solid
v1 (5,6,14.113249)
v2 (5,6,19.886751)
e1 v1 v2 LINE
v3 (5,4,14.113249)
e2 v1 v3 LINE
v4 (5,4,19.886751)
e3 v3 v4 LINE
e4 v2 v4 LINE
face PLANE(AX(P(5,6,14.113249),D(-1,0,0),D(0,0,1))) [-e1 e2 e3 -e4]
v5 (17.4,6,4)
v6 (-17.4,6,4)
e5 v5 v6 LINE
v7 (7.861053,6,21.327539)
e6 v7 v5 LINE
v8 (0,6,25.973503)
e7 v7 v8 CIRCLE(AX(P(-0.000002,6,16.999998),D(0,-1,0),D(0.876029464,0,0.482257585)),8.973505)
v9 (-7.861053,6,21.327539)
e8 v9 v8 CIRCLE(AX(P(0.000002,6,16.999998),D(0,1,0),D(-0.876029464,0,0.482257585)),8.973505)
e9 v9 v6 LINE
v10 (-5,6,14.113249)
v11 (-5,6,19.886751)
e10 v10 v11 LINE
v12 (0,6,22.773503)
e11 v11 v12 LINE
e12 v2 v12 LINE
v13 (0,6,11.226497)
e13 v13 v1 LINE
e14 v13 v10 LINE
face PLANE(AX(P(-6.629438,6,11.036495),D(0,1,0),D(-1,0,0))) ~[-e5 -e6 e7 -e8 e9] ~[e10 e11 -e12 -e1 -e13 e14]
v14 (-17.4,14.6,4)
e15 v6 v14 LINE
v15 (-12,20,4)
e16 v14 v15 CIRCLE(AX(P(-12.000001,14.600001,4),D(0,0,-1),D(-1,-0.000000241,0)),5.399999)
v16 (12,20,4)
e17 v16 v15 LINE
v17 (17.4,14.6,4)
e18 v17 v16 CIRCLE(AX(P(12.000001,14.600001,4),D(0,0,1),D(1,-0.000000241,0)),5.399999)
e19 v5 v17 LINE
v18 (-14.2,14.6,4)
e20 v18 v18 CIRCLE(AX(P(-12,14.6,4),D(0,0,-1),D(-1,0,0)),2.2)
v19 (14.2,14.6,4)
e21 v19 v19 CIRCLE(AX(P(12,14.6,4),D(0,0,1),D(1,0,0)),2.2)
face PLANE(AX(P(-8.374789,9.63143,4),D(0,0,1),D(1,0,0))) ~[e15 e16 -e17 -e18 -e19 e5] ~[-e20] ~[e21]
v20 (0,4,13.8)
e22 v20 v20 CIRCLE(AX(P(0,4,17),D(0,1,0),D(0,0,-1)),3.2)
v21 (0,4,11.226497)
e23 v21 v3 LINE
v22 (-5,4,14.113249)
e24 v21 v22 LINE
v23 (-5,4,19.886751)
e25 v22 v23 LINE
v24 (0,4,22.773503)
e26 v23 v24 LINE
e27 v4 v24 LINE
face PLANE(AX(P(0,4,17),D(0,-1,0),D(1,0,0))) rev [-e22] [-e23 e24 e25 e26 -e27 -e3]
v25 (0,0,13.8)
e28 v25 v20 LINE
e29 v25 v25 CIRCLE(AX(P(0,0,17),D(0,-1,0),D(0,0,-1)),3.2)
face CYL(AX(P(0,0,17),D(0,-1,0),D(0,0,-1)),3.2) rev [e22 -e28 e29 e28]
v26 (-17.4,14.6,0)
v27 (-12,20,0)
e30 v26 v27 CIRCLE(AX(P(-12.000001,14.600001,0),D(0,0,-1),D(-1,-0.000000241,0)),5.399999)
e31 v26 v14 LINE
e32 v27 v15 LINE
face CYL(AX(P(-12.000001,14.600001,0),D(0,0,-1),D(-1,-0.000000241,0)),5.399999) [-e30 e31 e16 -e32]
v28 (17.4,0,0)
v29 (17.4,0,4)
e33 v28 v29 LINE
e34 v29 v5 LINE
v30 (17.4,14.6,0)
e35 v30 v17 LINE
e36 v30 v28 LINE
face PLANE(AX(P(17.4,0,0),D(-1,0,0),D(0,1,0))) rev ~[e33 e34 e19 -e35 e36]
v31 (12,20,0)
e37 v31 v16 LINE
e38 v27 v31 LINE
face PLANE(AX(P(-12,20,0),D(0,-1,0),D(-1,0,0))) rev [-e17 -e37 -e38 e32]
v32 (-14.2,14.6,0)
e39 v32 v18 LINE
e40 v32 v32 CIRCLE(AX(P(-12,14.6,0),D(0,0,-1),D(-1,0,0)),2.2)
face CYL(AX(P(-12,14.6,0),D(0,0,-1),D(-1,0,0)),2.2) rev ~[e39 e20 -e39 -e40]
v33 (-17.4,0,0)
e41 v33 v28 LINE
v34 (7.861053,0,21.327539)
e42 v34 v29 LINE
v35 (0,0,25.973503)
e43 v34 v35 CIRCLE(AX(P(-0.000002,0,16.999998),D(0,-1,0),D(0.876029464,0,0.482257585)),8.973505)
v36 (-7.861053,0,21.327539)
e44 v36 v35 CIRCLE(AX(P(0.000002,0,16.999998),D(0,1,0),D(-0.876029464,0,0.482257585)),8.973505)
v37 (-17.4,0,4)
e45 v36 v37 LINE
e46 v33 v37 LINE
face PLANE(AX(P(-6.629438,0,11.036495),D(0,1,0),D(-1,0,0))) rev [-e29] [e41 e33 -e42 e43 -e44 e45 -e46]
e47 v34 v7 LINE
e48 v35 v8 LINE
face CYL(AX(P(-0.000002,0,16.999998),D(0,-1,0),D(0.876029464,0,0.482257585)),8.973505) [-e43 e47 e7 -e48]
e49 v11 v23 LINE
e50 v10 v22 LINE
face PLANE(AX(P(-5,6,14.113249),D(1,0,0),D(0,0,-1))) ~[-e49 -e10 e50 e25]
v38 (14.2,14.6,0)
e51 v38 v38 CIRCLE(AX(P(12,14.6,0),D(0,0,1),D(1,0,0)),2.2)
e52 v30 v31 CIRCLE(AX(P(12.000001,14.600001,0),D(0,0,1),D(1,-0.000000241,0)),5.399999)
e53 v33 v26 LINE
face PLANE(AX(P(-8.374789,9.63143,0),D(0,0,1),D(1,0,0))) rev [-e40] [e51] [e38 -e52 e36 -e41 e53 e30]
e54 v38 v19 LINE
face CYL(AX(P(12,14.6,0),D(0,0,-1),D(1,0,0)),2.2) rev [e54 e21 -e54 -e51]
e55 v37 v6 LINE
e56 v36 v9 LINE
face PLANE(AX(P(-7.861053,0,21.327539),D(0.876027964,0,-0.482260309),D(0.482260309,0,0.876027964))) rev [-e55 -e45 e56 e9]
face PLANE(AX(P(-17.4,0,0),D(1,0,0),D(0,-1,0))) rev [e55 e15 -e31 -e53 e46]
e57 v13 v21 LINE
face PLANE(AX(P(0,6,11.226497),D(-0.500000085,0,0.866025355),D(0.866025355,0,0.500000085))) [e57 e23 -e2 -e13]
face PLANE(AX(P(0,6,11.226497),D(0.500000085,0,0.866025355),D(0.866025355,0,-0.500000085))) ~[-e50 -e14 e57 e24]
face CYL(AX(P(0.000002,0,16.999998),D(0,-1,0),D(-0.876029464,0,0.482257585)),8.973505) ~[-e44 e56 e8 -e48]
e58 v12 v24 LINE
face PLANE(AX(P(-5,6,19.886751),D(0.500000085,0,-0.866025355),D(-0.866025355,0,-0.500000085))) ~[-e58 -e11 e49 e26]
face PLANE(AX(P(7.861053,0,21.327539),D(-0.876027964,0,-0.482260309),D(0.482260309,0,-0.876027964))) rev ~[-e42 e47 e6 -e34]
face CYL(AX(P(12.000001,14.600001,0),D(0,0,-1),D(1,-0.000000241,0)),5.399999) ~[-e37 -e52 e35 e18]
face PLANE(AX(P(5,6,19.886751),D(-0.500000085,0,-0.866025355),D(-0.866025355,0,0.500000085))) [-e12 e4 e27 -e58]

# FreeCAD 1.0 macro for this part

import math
import FreeCAD as App
import Part
import Sketcher
from FreeCAD import Vector
Q = App.Units.Quantity

doc = App.newDocument("Part")
body = doc.addObject("PartDesign::Body", "Body")

# Sketch on XY plane
sketch1 = doc.addObject("Sketcher::SketchObject", "Sketch")
body.addObject(sketch1)
sketch1.AttachmentSupport = (doc.XY_Plane, [""])
sketch1.MapMode = "FlatFace"
sketch1.addGeometry([
    Part.LineSegment(Vector(0, 0, 0), Vector(17.4, 0, 0)),  # 0
    Part.LineSegment(Vector(17.4, 0, 0), Vector(17.4, 14.6, 0)),  # 1
    Part.ArcOfCircle(Part.Circle(Vector(12, 14.6, 0), Vector(0, 0, 1), 5.4), math.radians(0), math.radians(90)),  # 2
    Part.LineSegment(Vector(12, 20, 0), Vector(0, 20, 0)),  # 3
    Part.LineSegment(Vector(0, 20, 0), Vector(0, 0, 0)),  # 4
    Part.Circle(Vector(12, 14.6, 0), Vector(0, 0, 1), 2.2),  # 5
], False)
sketch1.addConstraint([
    Sketcher.Constraint("Coincident", 0, 2, 1, 1),
    Sketcher.Constraint("Tangent", 1, 2, 2, 1),
    Sketcher.Constraint("Tangent", 2, 2, 3, 1),
    Sketcher.Constraint("Coincident", 3, 2, 4, 1),
    Sketcher.Constraint("Coincident", 4, 2, 0, 1),
    Sketcher.Constraint("Horizontal", 0),
    Sketcher.Constraint("Vertical", 1),
    Sketcher.Constraint("Horizontal", 3),
    Sketcher.Constraint("Vertical", 4),
    Sketcher.Constraint("Coincident", 4, 2, -1, 1),
    Sketcher.Constraint("Coincident", 5, 3, 2, 3),
    Sketcher.Constraint("Diameter", 5, Q("4.4 mm")),
    Sketcher.Constraint("Radius", 2, Q("5.399999 mm")),
    Sketcher.Constraint("DistanceX", 3, 2, 3, 1, Q("12 mm")),
    Sketcher.Constraint("DistanceY", 4, 2, 4, 1, Q("20 mm")),
])
pad1 = doc.addObject("PartDesign::Pad", "Pad")
body.addObject(pad1)
pad1.Profile = sketch1
pad1.Length = 4

# Sketch on XZ plane
sketch2 = doc.addObject("Sketcher::SketchObject", "Sketch001")
body.addObject(sketch2)
sketch2.AttachmentSupport = (doc.XZ_Plane, [""])
sketch2.MapMode = "FlatFace"
sketch2.addGeometry([
    Part.ArcOfCircle(Part.Circle(Vector(0, 17, 0), Vector(0, 0, 1), 3.2), math.radians(-90), math.radians(90)),  # 0
    Part.LineSegment(Vector(0, 13.8, 0), Vector(0, 0, 0)),  # 1
    Part.LineSegment(Vector(0, 0, 0), Vector(17.4, 0, 0)),  # 2
    Part.LineSegment(Vector(17.4, 0, 0), Vector(17.4, 4, 0)),  # 3
    Part.LineSegment(Vector(17.4, 4, 0), Vector(7.9, 21.3, 0)),  # 4
    Part.ArcOfCircle(Part.Circle(Vector(0, 17, 0), Vector(0, 0, 1), 9), math.radians(29), math.radians(90)),  # 5
    Part.LineSegment(Vector(0, 26, 0), Vector(0, 20.2, 0)),  # 6
], False)
sketch2.addConstraint([
    Sketcher.Constraint("Coincident", 0, 1, 1, 1),
    Sketcher.Constraint("Coincident", 1, 2, 2, 1),
    Sketcher.Constraint("Coincident", 2, 2, 3, 1),
    Sketcher.Constraint("Coincident", 3, 2, 4, 1),
    Sketcher.Constraint("Coincident", 4, 2, 5, 1),
    Sketcher.Constraint("Coincident", 5, 2, 6, 1),
    Sketcher.Constraint("Coincident", 6, 2, 0, 2),
    Sketcher.Constraint("Vertical", 1),
    Sketcher.Constraint("Horizontal", 2),
    Sketcher.Constraint("Vertical", 3),
    Sketcher.Constraint("Vertical", 6),
    Sketcher.Constraint("Coincident", 1, 2, -1, 1),
    Sketcher.Constraint("Coincident", 5, 3, 0, 3),
    Sketcher.Constraint("PointOnObject", 0, 3, -2),
    Sketcher.Constraint("PointOnObject", 5, 2, -2),
    Sketcher.Constraint("Radius", 0, Q("3.2 mm")),
    Sketcher.Constraint("DistanceY", 3, 1, 3, 2, Q("4 mm")),
    Sketcher.Constraint("DistanceX", 2, 1, 2, 2, Q("17.4 mm")),
    Sketcher.Constraint("DistanceY", 1, 2, 1, 1, Q("13.8 mm")),
    Sketcher.Constraint("Radius", 5, Q("8.973505 mm")),
    Sketcher.Constraint("DistanceY", -1, 1, 4, 2, Q("21.327539 mm")),
])
pad2 = doc.addObject("PartDesign::Pad", "Pad001")
body.addObject(pad2)
pad2.Profile = sketch2
pad2.Length = 6
pad2.Reversed = True

# Sketch on XZ plane
sketch3 = doc.addObject("Sketcher::SketchObject", "Sketch002")
body.addObject(sketch3)
sketch3.AttachmentSupport = (doc.XZ_Plane, [""])
sketch3.MapMode = "FlatFace"
sketch3.AttachmentOffset = App.Placement(Vector(0, 0, -6), App.Rotation())
sketch3.addGeometry([
    Part.LineSegment(Vector(0, 23, 0), Vector(-5, 20, 0)),  # 0
    Part.LineSegment(Vector(-5, 20, 0), Vector(-5, 14, 0)),  # 1
    Part.LineSegment(Vector(-5, 14, 0), Vector(0, 11, 0)),  # 2
    Part.LineSegment(Vector(0, 11, 0), Vector(5, 14, 0)),  # 3
    Part.LineSegment(Vector(5, 14, 0), Vector(5, 20, 0)),  # 4
    Part.LineSegment(Vector(5, 20, 0), Vector(0, 23, 0)),  # 5
], False)
sketch3.addConstraint([
    Sketcher.Constraint("Coincident", 0, 2, 1, 1),
    Sketcher.Constraint("Coincident", 1, 2, 2, 1),
    Sketcher.Constraint("Coincident", 2, 2, 3, 1),
    Sketcher.Constraint("Coincident", 3, 2, 4, 1),
    Sketcher.Constraint("Coincident", 4, 2, 5, 1),
    Sketcher.Constraint("Coincident", 5, 2, 0, 1),
    Sketcher.Constraint("Vertical", 1),
    Sketcher.Constraint("Vertical", 4),
    Sketcher.Constraint("Symmetric", 1, 2, 3, 2, -2),
    Sketcher.Constraint("PointOnObject", 2, 2, -2),
    Sketcher.Constraint("PointOnObject", 5, 2, -2),
    Sketcher.Constraint("Parallel", 0, 3),
    Sketcher.Constraint("Parallel", 2, 5),
    Sketcher.Constraint("Angle", 0, Q("-149.999994 deg")),
    Sketcher.Constraint("DistanceX", 0, 2, -1, 1, Q("5 mm")),
    Sketcher.Constraint("DistanceY", 1, 2, 1, 1, Q("5.773502 mm")),
    Sketcher.Constraint("DistanceY", -1, 1, 0, 2, Q("19.886751 mm")),
])
pocket1 = doc.addObject("PartDesign::Pocket", "Pocket")
body.addObject(pocket1)
pocket1.Profile = sketch3
pocket1.Length = 2
pocket1.Reversed = True
doc.recompute()

mirrored = doc.addObject("PartDesign::Mirrored", "Mirrored")
body.addObject(mirrored)
mirrored.Originals = [pad1, pad2, pocket1]
mirrored.MirrorPlane = (doc.YZ_Plane, [""])
body.Tip = mirrored

doc.recompute()
